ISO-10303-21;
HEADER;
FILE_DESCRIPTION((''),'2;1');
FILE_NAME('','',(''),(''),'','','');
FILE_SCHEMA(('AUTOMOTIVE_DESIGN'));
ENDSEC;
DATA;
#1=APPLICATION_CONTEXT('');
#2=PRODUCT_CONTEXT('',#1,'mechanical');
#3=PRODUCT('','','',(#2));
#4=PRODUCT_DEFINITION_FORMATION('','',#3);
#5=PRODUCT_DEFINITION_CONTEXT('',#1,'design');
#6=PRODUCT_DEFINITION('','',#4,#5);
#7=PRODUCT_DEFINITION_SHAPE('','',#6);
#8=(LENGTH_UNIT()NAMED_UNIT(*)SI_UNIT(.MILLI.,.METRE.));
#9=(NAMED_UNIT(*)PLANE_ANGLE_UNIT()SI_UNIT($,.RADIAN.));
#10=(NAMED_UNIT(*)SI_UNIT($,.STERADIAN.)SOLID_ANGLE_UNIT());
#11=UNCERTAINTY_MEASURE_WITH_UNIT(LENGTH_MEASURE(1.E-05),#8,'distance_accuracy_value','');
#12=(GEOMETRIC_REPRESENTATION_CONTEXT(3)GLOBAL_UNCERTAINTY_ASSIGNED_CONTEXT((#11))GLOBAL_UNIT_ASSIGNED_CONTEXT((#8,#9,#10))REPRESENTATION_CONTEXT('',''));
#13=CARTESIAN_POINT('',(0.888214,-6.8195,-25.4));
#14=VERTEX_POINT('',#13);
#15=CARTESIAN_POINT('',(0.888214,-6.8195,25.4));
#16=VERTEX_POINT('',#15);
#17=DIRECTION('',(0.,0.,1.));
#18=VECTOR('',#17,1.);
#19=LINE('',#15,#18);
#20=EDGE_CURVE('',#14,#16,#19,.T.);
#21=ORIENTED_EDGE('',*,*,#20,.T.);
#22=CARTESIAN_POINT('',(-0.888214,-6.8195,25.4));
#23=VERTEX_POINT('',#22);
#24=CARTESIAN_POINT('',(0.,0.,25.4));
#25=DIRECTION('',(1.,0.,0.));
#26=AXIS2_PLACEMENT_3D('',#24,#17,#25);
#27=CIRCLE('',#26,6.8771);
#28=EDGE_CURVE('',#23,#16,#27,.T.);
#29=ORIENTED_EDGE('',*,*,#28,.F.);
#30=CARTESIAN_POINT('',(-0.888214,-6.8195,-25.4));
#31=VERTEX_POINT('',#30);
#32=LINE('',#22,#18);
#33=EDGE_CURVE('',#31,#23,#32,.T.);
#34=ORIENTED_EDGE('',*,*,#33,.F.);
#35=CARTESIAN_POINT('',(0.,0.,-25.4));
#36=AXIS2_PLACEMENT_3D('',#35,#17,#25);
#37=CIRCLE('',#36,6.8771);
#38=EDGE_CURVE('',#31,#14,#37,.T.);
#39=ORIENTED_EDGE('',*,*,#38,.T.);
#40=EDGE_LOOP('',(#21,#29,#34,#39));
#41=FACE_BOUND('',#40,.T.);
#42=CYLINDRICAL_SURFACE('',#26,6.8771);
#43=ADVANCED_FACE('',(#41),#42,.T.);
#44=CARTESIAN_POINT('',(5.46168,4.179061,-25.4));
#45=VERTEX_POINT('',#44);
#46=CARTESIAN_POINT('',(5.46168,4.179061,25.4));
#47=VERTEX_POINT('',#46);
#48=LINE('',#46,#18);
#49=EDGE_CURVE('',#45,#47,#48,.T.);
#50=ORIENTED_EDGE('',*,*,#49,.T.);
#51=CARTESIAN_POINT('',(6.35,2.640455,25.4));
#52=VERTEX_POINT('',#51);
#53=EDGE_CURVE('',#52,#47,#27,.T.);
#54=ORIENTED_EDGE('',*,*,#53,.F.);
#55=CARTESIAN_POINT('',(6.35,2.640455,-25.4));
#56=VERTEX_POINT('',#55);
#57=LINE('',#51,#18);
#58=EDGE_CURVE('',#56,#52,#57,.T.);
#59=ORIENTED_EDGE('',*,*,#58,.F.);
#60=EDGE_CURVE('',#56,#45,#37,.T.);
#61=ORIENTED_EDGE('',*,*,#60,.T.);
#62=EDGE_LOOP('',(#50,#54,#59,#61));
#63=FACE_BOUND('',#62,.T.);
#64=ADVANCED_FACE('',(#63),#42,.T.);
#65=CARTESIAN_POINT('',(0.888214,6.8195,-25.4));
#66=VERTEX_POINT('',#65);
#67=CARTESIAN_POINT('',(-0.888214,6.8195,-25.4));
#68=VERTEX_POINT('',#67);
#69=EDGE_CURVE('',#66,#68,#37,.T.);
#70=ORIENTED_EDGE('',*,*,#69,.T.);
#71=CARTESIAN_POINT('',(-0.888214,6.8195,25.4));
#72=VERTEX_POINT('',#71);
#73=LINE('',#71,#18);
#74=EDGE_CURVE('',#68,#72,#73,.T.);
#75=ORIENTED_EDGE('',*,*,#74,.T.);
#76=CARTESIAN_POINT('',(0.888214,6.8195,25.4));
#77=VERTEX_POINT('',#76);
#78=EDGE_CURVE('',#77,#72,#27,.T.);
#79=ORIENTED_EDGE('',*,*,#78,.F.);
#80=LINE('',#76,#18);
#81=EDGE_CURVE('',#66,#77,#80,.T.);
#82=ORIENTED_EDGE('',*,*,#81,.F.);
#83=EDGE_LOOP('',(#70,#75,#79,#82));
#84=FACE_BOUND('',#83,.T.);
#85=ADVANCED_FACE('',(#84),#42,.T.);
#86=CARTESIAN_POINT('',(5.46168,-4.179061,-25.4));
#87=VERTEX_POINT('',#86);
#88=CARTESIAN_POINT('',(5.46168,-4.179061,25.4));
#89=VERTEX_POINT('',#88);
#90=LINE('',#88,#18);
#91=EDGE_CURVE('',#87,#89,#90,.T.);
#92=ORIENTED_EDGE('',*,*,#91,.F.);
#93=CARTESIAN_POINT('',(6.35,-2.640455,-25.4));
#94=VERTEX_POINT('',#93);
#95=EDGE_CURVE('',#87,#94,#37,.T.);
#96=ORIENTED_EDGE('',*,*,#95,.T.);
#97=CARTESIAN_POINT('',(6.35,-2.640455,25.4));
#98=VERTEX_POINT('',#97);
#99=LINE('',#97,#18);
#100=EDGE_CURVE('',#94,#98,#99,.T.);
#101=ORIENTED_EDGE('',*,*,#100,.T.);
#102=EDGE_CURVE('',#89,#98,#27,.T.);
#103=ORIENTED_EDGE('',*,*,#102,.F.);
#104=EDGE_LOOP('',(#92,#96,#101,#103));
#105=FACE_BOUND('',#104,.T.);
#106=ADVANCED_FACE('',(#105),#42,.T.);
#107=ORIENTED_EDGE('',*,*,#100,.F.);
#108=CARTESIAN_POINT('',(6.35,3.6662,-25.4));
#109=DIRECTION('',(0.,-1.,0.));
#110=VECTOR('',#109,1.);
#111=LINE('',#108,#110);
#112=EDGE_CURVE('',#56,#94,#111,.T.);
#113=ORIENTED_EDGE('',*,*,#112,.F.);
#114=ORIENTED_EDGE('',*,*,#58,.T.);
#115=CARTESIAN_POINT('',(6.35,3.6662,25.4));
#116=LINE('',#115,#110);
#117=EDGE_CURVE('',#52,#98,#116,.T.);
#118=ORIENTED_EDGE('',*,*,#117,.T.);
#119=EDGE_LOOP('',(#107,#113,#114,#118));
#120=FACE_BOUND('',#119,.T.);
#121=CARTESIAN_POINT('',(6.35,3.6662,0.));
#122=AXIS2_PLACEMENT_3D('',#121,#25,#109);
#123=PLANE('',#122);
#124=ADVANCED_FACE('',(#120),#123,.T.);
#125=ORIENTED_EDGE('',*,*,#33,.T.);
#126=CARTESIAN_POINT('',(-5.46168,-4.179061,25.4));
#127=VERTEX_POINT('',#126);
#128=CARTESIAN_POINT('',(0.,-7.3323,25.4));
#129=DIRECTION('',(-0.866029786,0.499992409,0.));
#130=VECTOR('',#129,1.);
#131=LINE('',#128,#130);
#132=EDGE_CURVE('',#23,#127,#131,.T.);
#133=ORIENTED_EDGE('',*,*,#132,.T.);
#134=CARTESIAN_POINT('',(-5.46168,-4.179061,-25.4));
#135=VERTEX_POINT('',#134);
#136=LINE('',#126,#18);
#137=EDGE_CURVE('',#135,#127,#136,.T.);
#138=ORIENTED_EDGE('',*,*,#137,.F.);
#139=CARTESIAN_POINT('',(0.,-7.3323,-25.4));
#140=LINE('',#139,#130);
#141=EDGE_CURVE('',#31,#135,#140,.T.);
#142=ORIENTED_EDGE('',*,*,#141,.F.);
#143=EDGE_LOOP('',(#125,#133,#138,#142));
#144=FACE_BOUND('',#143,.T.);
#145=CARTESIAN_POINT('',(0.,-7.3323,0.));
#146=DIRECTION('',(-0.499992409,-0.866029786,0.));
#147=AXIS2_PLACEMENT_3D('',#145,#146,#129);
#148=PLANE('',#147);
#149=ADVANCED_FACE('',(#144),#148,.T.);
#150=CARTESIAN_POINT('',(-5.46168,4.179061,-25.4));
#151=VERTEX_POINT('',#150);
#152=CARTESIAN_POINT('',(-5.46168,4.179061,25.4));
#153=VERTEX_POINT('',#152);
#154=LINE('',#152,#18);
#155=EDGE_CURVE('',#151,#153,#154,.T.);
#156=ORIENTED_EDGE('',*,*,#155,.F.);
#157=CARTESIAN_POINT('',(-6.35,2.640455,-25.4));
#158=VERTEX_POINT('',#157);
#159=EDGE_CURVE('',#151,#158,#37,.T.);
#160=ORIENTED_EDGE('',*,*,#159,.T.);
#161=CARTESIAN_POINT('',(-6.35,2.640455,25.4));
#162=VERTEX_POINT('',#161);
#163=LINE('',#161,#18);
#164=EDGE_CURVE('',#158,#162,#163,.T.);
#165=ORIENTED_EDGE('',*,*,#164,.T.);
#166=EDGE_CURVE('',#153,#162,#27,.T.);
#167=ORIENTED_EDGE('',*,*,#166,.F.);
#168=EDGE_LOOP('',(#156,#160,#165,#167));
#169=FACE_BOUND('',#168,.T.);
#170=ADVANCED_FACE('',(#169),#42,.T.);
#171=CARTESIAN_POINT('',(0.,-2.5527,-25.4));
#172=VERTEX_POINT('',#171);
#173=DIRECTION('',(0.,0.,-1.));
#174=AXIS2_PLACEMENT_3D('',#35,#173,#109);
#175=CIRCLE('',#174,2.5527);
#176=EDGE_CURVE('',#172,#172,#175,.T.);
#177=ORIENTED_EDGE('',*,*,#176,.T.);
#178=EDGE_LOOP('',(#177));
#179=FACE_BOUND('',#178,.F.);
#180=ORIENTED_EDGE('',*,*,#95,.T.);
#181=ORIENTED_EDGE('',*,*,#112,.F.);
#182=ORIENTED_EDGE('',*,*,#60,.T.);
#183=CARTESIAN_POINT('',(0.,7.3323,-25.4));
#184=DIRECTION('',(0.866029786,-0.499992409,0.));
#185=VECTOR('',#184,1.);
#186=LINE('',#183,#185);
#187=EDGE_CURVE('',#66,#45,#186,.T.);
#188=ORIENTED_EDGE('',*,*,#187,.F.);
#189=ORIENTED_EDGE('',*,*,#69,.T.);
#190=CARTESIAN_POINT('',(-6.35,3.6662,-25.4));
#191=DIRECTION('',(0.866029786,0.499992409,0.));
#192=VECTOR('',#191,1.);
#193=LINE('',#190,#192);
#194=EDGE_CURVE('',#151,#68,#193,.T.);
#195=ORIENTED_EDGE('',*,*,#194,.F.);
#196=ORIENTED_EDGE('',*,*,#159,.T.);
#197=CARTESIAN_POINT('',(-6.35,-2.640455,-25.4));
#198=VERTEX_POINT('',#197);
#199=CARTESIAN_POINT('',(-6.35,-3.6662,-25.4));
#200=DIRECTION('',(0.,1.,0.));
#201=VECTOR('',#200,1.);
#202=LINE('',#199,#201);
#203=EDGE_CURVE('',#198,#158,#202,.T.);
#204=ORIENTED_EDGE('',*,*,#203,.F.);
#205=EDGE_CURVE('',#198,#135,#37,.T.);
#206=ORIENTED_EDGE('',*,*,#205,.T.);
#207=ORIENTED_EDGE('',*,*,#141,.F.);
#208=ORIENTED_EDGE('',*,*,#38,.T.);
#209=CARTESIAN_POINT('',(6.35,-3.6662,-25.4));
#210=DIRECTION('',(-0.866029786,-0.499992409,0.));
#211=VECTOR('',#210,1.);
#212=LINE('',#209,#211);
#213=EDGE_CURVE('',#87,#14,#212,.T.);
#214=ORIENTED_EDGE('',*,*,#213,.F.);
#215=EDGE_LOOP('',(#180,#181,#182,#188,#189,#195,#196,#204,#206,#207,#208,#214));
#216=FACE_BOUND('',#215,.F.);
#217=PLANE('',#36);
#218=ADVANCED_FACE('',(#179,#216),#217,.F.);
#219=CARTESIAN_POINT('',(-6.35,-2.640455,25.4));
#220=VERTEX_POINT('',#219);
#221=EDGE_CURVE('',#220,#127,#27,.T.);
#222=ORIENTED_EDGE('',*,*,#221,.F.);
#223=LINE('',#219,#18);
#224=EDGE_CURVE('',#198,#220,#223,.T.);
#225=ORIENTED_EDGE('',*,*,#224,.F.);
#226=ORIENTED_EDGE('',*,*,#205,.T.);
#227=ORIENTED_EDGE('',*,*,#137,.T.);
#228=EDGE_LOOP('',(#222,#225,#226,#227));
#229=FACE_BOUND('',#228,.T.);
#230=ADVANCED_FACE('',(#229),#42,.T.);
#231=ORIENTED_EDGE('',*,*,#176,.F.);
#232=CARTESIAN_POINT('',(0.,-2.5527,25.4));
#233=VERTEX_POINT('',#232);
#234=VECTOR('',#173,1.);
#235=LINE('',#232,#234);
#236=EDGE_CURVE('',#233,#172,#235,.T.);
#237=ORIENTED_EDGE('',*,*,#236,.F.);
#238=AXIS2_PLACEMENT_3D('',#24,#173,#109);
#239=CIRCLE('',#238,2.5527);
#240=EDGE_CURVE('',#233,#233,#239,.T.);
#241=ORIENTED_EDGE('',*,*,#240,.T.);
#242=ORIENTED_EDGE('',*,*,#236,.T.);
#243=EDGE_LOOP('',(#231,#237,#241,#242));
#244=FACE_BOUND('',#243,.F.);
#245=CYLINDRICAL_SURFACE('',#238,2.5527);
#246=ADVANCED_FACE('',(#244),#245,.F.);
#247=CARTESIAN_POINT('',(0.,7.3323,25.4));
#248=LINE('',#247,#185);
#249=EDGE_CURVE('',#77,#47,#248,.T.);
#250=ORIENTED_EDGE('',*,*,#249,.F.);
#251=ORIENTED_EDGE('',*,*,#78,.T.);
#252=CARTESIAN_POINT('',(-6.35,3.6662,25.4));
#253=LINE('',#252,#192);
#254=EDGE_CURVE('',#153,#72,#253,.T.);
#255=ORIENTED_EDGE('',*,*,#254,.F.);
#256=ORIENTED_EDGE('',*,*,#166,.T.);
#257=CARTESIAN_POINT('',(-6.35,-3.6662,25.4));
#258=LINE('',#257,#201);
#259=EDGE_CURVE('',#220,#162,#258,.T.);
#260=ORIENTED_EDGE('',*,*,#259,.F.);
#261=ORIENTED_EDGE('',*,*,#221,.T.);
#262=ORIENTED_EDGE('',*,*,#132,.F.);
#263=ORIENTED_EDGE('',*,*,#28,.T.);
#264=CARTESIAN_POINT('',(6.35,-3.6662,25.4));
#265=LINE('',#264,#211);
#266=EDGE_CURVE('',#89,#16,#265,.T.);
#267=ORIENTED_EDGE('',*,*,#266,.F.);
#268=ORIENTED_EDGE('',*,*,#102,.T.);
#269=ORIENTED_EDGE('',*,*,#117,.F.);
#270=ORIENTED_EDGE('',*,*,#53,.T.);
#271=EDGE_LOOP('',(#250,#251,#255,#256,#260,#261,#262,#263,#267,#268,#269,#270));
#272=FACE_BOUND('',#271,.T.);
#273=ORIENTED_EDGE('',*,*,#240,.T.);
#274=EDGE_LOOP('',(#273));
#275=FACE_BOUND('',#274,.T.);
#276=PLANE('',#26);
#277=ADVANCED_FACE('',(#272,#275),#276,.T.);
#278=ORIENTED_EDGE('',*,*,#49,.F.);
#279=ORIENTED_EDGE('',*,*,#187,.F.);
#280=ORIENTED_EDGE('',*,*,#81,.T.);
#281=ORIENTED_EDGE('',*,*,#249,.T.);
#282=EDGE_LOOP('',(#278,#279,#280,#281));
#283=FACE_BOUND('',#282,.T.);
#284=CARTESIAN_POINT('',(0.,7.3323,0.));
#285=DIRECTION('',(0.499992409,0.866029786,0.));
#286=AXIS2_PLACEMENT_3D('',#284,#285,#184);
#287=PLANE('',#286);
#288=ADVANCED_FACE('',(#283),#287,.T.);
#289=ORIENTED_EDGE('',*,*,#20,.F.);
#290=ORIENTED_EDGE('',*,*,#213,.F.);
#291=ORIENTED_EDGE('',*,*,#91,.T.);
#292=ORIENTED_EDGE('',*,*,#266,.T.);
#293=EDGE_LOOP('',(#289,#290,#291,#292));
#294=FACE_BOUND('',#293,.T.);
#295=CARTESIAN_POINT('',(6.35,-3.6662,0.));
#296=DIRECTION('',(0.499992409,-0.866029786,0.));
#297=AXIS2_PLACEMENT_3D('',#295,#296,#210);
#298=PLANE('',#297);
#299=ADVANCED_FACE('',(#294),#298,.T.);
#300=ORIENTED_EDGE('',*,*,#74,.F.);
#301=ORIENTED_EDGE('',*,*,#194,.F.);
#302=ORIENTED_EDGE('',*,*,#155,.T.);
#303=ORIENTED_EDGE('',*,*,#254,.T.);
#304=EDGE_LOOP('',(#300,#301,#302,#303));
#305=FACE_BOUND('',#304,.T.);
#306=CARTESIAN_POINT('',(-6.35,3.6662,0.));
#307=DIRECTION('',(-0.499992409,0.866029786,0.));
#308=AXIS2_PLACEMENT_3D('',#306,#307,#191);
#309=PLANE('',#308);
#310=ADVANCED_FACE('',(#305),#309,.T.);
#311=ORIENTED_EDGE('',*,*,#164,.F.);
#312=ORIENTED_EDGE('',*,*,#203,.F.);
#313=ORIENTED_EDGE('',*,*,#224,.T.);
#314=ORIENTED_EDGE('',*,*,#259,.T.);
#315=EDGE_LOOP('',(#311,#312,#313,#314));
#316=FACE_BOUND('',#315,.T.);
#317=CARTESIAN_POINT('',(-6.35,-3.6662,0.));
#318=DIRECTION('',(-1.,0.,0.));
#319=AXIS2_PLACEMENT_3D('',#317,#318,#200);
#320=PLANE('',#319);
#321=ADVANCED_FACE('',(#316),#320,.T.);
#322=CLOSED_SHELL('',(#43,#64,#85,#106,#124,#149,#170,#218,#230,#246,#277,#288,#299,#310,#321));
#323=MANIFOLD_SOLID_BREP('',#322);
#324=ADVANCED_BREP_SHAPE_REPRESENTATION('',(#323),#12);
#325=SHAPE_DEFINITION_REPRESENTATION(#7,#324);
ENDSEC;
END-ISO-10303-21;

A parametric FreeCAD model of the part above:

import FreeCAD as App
import Part
import Sketcher
from FreeCAD import Vector
Q = App.Units.Quantity


def add_polygon(sketch, points):
    """Adds a closed chain of lines whose ends are joined by coincident constraints."""
    first, n = sketch.GeometryCount, len(points)
    for a, b in zip(points, points[1:] + points[:1]):
        sketch.addGeometry(Part.LineSegment(App.Vector(*a, 0), App.Vector(*b, 0)), False)
    for i in range(n):
        sketch.addConstraint(Sketcher.Constraint("Coincident", first + i, 2, first + (i + 1) % n, 1))

doc = App.newDocument("Part")
params = doc.addObject("Spreadsheet::Sheet", "Params")
for row, (alias, value) in enumerate([
    ("pad1_length", "2 in"),
    ("sketch2_diameter", "0.201 in"),
    ("hole_diameter", "0.201 in"),
    ("sketch3_diameter", "0.7 in"),
], start=1):
    params.set(f"A{row}", alias)
    params.set(f"B{row}", "=" + value)
    params.setAlias(f"B{row}", alias)

body = doc.addObject("PartDesign::Body", "Body")

sketch1 = body.newObject("Sketcher::SketchObject", "Sketch")
sketch1.AttachmentSupport = (doc.getObject("XY_Plane"), [""])
sketch1.MapMode = "FlatFace"
add_polygon(sketch1, [(-6, 4), (-6, -4), (0, -7), (6, -4), (6, 4), (0, 7)])
sketch1.addConstraint([
    Sketcher.Constraint("Vertical", 0),
    Sketcher.Constraint("Vertical", 3),
    Sketcher.Constraint("Symmetric", 0, 2, 3, 2, -1, 1),
    Sketcher.Constraint("Symmetric", 1, 2, 4, 2, -1, 1),
    Sketcher.Constraint("PointOnObject", 1, 2, -2),
    Sketcher.Constraint("Parallel", 2, 5),
    Sketcher.Constraint("Horizontal", 0, 2, 2, 2),
    Sketcher.Constraint("DistanceX", 0, 2, 2, 2, Q("0.5 in")),
    Sketcher.Constraint("Angle", 1, Q("-29.9995 deg")),
    Sketcher.Constraint("DistanceY", 1, 2, 3, 2, Q("0.433 in")),
])
pad1 = body.newObject("PartDesign::Pad", "Pad")
pad1.Profile = sketch1
pad1.setExpression("Length", "Params.pad1_length")
pad1.Midplane = True

sketch2 = body.newObject("Sketcher::SketchObject", "Sketch001")
sketch2.AttachmentSupport = (doc.getObject("XY_Plane"), [""])
sketch2.MapMode = "FlatFace"
sketch2.AttachmentOffset = App.Placement(Vector(0, 0, 1 * 25.4), App.Rotation())
sketch2.addGeometry(Part.Circle(Vector(0, 0, 0), Vector(0, 0, 1), 2.6), False)
sketch2.addConstraint([
    Sketcher.Constraint("Coincident", 0, 3, -1, 1),
    Sketcher.Constraint("Diameter", 0, Q("0.201 in")),
])
sketch2.setExpression("Constraints[1]", "Params.sketch2_diameter")
doc.recompute()
hole = body.newObject("PartDesign::Hole", "Hole")
hole.Profile = sketch2
hole.ThreadType = "None"
hole.setExpression("Diameter", "Params.hole_diameter")
hole.DepthType = "ThroughAll"

sketch3 = body.newObject("Sketcher::SketchObject", "Sketch002")
sketch3.AttachmentSupport = (doc.getObject("XY_Plane"), [""])
sketch3.MapMode = "FlatFace"
sketch3.AttachmentOffset = App.Placement(Vector(0, 0, 1 * 25.4), App.Rotation())
sketch3.addGeometry([
    Part.Circle(Vector(0, 0, 0), Vector(0, 0, 1), 9),
    Part.Circle(Vector(0, 0, 0), Vector(0, 0, 1), 7),
], False)
sketch3.addConstraint([
    Sketcher.Constraint("Coincident", 0, 3, -1, 1),
    Sketcher.Constraint("Coincident", 1, 3, -1, 1),
    Sketcher.Constraint("Diameter", 0, Q("0.7 in")),
    Sketcher.Constraint("Diameter", 1, Q("0.5415 in")),
])
sketch3.setExpression("Constraints[2]", "Params.sketch3_diameter")
pocket1 = body.newObject("PartDesign::Pocket", "Pocket")
pocket1.Profile = sketch3
pocket1.Type = "ThroughAll"

doc.recompute()
